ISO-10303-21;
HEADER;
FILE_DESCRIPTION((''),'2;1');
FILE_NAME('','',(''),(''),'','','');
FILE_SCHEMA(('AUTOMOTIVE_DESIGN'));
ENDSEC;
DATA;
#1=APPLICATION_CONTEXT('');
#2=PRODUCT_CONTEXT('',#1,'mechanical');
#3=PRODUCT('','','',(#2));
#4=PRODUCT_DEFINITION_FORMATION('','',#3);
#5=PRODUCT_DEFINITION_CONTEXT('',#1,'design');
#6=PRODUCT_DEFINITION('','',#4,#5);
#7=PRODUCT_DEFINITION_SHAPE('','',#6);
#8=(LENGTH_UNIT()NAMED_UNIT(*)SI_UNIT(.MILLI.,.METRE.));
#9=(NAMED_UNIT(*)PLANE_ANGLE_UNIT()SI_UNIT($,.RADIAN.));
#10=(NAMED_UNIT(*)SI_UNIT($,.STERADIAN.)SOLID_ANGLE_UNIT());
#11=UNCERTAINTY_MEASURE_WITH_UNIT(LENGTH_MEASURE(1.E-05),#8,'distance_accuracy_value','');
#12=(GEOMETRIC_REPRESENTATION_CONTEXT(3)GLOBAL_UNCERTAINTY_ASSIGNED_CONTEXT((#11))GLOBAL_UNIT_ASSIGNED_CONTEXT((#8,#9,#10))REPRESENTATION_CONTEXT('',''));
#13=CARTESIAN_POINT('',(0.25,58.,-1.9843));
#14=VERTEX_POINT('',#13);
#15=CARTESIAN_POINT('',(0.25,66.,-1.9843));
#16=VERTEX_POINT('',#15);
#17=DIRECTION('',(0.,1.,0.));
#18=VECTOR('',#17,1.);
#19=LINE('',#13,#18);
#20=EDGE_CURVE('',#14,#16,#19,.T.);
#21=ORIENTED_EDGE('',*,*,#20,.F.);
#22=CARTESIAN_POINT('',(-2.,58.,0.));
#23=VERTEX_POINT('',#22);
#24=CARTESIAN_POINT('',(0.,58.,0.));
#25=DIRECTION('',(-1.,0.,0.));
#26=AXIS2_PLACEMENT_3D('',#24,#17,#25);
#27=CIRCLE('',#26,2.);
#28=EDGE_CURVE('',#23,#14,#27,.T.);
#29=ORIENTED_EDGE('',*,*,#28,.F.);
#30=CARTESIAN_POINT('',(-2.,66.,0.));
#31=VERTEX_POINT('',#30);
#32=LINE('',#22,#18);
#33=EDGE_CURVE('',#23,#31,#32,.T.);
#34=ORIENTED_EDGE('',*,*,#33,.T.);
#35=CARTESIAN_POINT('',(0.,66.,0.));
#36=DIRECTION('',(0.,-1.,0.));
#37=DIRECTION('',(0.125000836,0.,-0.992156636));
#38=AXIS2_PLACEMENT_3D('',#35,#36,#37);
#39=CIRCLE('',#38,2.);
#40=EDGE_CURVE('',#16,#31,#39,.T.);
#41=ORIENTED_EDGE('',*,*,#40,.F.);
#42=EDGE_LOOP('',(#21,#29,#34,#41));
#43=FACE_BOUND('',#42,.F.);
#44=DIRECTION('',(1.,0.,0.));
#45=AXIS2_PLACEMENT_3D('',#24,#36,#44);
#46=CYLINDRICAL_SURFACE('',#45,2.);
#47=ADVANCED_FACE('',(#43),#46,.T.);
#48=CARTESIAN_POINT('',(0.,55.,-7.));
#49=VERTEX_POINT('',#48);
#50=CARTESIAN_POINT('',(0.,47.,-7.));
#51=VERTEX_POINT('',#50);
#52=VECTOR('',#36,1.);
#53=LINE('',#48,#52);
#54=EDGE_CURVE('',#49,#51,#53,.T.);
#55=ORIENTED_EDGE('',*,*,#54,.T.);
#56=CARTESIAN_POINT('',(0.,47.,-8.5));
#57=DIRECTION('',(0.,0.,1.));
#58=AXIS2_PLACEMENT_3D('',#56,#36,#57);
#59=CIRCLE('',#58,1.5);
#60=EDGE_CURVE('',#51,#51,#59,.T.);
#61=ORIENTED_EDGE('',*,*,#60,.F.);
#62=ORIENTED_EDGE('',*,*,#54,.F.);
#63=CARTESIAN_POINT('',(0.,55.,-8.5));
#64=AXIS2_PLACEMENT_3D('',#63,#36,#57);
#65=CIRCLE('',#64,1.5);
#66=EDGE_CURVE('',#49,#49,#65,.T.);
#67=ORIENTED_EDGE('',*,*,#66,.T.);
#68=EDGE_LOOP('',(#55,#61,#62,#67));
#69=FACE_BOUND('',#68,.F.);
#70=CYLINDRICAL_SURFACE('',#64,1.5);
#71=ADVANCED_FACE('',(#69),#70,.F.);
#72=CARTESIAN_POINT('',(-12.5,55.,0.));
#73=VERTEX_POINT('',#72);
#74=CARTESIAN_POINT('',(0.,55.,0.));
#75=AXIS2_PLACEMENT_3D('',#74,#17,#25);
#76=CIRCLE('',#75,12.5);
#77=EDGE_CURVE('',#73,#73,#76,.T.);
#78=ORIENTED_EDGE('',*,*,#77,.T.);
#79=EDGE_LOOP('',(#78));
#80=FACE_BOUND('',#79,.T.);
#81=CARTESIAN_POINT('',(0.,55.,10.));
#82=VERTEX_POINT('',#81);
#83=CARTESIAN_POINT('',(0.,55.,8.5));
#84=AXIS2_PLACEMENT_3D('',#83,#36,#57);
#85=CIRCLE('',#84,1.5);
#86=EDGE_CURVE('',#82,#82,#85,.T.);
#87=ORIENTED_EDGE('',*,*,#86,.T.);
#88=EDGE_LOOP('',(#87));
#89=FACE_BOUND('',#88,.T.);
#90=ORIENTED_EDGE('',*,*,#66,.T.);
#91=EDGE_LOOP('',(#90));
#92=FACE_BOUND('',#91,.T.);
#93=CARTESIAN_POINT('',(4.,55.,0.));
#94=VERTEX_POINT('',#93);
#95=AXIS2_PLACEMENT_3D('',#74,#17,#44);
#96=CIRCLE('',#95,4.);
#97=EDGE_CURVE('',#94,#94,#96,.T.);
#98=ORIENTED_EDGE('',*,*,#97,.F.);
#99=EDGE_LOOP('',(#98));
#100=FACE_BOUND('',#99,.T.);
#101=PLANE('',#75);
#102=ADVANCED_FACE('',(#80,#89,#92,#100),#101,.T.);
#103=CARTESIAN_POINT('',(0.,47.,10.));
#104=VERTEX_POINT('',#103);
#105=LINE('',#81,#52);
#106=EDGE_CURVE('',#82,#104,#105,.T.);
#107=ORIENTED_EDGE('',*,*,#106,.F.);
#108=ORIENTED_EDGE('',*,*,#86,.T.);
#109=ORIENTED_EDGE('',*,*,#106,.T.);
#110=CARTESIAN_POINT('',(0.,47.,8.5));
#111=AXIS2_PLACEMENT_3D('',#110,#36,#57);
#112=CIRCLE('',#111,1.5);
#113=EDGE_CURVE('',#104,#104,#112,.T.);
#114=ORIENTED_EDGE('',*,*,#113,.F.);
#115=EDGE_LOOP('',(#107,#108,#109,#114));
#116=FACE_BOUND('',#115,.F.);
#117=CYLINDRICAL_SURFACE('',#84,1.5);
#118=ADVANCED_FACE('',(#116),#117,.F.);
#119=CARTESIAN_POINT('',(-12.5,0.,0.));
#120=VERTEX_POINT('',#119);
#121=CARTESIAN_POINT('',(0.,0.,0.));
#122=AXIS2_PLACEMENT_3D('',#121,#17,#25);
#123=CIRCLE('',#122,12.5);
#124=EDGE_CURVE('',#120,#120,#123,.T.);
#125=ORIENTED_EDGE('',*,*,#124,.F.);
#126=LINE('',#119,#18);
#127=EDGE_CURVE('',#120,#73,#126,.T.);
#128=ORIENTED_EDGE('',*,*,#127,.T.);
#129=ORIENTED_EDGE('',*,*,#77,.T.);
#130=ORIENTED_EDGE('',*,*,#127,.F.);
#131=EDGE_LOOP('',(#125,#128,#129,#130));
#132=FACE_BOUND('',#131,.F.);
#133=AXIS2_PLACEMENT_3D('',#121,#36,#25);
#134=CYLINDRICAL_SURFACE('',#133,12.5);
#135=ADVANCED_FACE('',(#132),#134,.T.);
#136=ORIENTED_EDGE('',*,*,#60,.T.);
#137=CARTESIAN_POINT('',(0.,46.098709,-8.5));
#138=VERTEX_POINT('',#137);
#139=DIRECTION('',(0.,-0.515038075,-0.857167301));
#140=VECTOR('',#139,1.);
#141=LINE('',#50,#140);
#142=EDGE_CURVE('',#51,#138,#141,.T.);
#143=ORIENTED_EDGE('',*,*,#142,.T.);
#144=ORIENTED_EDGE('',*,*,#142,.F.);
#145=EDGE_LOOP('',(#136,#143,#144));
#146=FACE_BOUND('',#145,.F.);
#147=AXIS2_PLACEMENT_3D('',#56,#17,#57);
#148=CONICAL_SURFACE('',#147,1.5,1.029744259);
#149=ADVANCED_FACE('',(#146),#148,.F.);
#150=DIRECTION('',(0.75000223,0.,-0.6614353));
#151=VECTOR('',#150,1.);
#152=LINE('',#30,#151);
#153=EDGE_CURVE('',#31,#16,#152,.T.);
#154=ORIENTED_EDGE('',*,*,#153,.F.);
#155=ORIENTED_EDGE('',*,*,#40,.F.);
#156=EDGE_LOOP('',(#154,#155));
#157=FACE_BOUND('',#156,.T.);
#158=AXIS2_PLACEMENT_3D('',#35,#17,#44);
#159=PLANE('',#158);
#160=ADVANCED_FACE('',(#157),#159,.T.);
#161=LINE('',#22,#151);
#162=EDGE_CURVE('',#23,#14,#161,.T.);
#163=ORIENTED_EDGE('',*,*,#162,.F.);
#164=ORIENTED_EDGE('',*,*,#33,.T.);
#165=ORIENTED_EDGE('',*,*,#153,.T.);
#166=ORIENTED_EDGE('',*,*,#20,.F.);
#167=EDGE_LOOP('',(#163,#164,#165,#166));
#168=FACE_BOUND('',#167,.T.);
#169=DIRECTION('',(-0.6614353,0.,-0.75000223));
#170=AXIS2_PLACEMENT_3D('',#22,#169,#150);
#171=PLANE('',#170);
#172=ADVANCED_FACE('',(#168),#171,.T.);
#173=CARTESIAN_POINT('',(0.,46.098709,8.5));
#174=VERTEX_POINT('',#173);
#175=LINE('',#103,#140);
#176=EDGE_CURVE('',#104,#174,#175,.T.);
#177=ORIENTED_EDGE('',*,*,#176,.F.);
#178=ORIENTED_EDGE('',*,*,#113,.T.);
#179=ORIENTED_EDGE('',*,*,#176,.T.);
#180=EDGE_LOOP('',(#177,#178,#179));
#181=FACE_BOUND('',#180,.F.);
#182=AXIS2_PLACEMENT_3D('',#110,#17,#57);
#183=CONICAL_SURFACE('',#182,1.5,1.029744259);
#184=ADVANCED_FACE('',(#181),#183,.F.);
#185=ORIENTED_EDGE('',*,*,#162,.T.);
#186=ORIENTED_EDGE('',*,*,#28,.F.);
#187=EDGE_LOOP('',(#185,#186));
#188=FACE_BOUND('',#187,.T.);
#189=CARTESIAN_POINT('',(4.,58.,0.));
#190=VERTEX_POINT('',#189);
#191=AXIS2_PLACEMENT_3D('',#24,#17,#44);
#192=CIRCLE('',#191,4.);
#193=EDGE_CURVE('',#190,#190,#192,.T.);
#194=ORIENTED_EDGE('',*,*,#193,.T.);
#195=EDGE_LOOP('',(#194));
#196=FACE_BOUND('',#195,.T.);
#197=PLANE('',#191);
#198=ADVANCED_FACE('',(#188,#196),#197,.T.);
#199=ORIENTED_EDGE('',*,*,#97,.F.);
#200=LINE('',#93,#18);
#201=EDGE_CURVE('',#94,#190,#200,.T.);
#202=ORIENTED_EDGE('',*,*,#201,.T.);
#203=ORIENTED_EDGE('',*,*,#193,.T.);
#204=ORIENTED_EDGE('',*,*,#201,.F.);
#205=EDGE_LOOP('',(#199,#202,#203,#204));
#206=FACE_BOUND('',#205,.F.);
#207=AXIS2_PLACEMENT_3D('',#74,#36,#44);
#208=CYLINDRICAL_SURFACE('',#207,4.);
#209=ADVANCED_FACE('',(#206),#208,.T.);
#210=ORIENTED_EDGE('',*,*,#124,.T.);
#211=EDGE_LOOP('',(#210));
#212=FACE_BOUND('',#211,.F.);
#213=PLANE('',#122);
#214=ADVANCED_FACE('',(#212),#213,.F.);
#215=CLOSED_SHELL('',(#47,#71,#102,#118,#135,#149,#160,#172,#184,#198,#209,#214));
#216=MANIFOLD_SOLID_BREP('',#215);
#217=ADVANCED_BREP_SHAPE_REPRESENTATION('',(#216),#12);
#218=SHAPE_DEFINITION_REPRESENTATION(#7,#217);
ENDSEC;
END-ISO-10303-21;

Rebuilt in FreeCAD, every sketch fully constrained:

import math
import FreeCAD as App
import Part
import Sketcher
from FreeCAD import Vector
Q = App.Units.Quantity

doc = App.newDocument("Part")
body = doc.addObject("PartDesign::Body", "Body")

# Sketch on XZ plane
sketch1 = body.newObject("Sketcher::SketchObject", "Sketch")
sketch1.AttachmentSupport = (doc.getObject("XZ_Plane"), [""])
sketch1.MapMode = "FlatFace"
sketch1.addGeometry(Part.Circle(Vector(0, 0, 0), Vector(0, 0, 1), 12), False)
sketch1.addConstraint([
    Sketcher.Constraint("Coincident", 0, 3, -1, 1),
    Sketcher.Constraint("Diameter", 0, Q("25 mm")),
])
pad1 = body.newObject("PartDesign::Pad", "Pad")
pad1.Profile = sketch1
pad1.Length = 55
pad1.Reversed = True

# Sketch on XZ plane
sketch2 = body.newObject("Sketcher::SketchObject", "Sketch001")
sketch2.AttachmentSupport = (doc.getObject("XZ_Plane"), [""])
sketch2.MapMode = "FlatFace"
sketch2.AttachmentOffset = App.Placement(Vector(0, 0, -55), App.Rotation())
sketch2.addGeometry(Part.Circle(Vector(0, 0, 0), Vector(0, 0, 1), 4), False)
sketch2.addConstraint([
    Sketcher.Constraint("Coincident", 0, 3, -1, 1),
    Sketcher.Constraint("Diameter", 0, Q("8 mm")),
])
pad2 = body.newObject("PartDesign::Pad", "Pad001")
pad2.Profile = sketch2
pad2.Length = 3
pad2.Reversed = True

# Sketch on XZ plane
sketch3 = body.newObject("Sketcher::SketchObject", "Sketch002")
sketch3.AttachmentSupport = (doc.getObject("XZ_Plane"), [""])
sketch3.MapMode = "FlatFace"
sketch3.AttachmentOffset = App.Placement(Vector(0, 0, -58), App.Rotation())
sketch3.addGeometry([
    Part.LineSegment(Vector(0.2, -2, 0), Vector(-2, 0, 0)),
    Part.ArcOfCircle(Part.Circle(Vector(0, 0, 0), Vector(0, 0, 1), 2), math.radians(-83), math.radians(180)),
], False)
sketch3.addConstraint([
    Sketcher.Constraint("Coincident", 0, 1, 1, 1),
    Sketcher.Constraint("Coincident", 1, 2, 0, 2),
    Sketcher.Constraint("Coincident", 1, 3, -1, 1),
    Sketcher.Constraint("PointOnObject", 1, 2, -1),
    Sketcher.Constraint("Radius", 1, Q("2 mm")),
    Sketcher.Constraint("Distance", 0, Q("3 mm")),
])
pad3 = body.newObject("PartDesign::Pad", "Pad002")
pad3.Profile = sketch3
pad3.Length = 8
pad3.Reversed = True

# Sketch on XZ plane
sketch4 = body.newObject("Sketcher::SketchObject", "Sketch003")
sketch4.AttachmentSupport = (doc.getObject("XZ_Plane"), [""])
sketch4.MapMode = "FlatFace"
sketch4.AttachmentOffset = App.Placement(Vector(0, 0, -55), App.Rotation())
sketch4.addGeometry([
    Part.Circle(Vector(0, -8.5, 0), Vector(0, 0, 1), 1.5),
    Part.Circle(Vector(0, 8.5, 0), Vector(0, 0, 1), 1.5),
], False)
sketch4.addConstraint([
    Sketcher.Constraint("Equal", 0, 1),
    Sketcher.Constraint("Symmetric", 0, 3, 1, 3, -1, 1),
    Sketcher.Constraint("PointOnObject", 0, 3, -2),
    Sketcher.Constraint("Diameter", 0, Q("3 mm")),
    Sketcher.Constraint("DistanceY", 0, 3, 1, 3, Q("17 mm")),
])
doc.recompute()
hole = body.newObject("PartDesign::Hole", "Hole")
hole.Profile = sketch4
hole.ThreadType = "None"
hole.Diameter = 3
hole.DepthType = "Dimension"
hole.Depth = 8
hole.DrillPoint = "Angled"
hole.DrillPointAngle = 118
hole.Reversed = True

doc.recompute()
